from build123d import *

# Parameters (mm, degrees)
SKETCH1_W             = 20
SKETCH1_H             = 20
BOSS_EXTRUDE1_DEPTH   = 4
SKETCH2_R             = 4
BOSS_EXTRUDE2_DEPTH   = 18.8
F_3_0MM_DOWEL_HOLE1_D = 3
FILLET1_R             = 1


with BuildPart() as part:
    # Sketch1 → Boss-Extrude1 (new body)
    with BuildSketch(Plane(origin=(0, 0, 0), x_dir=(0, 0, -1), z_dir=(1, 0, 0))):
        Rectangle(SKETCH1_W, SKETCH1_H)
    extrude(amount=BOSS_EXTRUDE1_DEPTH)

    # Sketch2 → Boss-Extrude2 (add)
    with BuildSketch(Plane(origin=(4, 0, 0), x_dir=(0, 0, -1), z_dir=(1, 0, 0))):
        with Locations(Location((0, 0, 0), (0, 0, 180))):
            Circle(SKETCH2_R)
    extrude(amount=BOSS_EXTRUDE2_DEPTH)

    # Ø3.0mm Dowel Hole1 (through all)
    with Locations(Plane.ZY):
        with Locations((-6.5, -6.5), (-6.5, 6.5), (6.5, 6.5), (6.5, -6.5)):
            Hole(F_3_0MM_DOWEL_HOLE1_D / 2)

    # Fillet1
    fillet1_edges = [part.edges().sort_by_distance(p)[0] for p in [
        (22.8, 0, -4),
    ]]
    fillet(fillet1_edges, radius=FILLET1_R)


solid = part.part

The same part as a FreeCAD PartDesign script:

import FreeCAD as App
import Part
import Sketcher

V = App.Vector


def edges_at(feature, points):
    """Names of the edges that pass closest to the given points."""
    edges = feature.Shape.Edges
    near = lambda p: min(range(len(edges)), key=lambda i: edges[i].distToShape(Part.Vertex(*p))[0])
    return sorted({f"Edge{near(p) + 1}" for p in points})


def add_polygon(sketch, points):
    """Adds a closed chain of lines whose ends are joined by coincident constraints."""
    first, n = sketch.GeometryCount, len(points)
    for a, b in zip(points, points[1:] + points[:1]):
        sketch.addGeometry(Part.LineSegment(App.Vector(*a, 0), App.Vector(*b, 0)), False)
    for i in range(n):
        sketch.addConstraint(Sketcher.Constraint("Coincident", first + i, 2, first + (i + 1) % n, 1))

doc = App.newDocument("Part")
body = doc.addObject("PartDesign::Body", "Body")

# Sketch on YZ plane
sketch1 = doc.addObject("Sketcher::SketchObject", "Sketch")
body.addObject(sketch1)
sketch1.AttachmentSupport = (doc.YZ_Plane, [""])
sketch1.MapMode = "FlatFace"
add_polygon(sketch1, [(10, 10), (-10, 10), (-10, -10), (10, -10)])  # lines 0-3
sketch1.addConstraint(Sketcher.Constraint("Horizontal", 0))
sketch1.addConstraint(Sketcher.Constraint("Vertical", 1))
sketch1.addConstraint(Sketcher.Constraint("Horizontal", 2))
sketch1.addConstraint(Sketcher.Constraint("Vertical", 3))
sketch1.addConstraint(Sketcher.Constraint("Symmetric", 0, 2, 2, 2, -1, 1))
sketch1.addConstraint(Sketcher.Constraint("Equal", 2, 1))
sketch1.addConstraint(Sketcher.Constraint("DistanceX", 0, 2, 0, 1, 20.0))
pad1 = doc.addObject("PartDesign::Pad", "Pad")
body.addObject(pad1)
pad1.Profile = sketch1
pad1.Length = 4

# Sketch on YZ plane
sketch2 = doc.addObject("Sketcher::SketchObject", "Sketch001")
body.addObject(sketch2)
sketch2.AttachmentSupport = (doc.YZ_Plane, [""])
sketch2.MapMode = "FlatFace"
sketch2.AttachmentOffset = App.Placement(V(0, 0, 4), App.Rotation())
sketch2.addGeometry(Part.Circle(V(0, 0, 0), V(0, 0, 1), 4), False)
sketch2.addConstraint(Sketcher.Constraint("Coincident", 0, 3, -1, 1))
sketch2.addConstraint(Sketcher.Constraint("Diameter", 0, 8.0))
pad2 = doc.addObject("PartDesign::Pad", "Pad001")
body.addObject(pad2)
pad2.Profile = sketch2
pad2.Length = 18.8

# Sketch on YZ plane
sketch3 = doc.addObject("Sketcher::SketchObject", "Sketch002")
body.addObject(sketch3)
sketch3.AttachmentSupport = (doc.YZ_Plane, [""])
sketch3.MapMode = "FlatFace"
sketch3.addGeometry(Part.Circle(V(-6.5, -6.5, 0), V(0, 0, 1), 1.5), False)
sketch3.addGeometry(Part.Circle(V(6.5, -6.5, 0), V(0, 0, 1), 1.5), False)
sketch3.addGeometry(Part.Circle(V(6.5, 6.5, 0), V(0, 0, 1), 1.5), False)
sketch3.addGeometry(Part.Circle(V(-6.5, 6.5, 0), V(0, 0, 1), 1.5), False)
sketch3.addConstraint(Sketcher.Constraint("Equal", 0, 1))
sketch3.addConstraint(Sketcher.Constraint("Equal", 1, 2))
sketch3.addConstraint(Sketcher.Constraint("Equal", 2, 3))
sketch3.addConstraint(Sketcher.Constraint("Symmetric", 0, 3, 2, 3, -1, 1))
sketch3.addConstraint(Sketcher.Constraint("Symmetric", 1, 3, 3, 3, -1, 1))
sketch3.addConstraint(Sketcher.Constraint("Symmetric", 0, 3, 1, 3, -2))
sketch3.addConstraint(Sketcher.Constraint("Diameter", 0, 3.0))
sketch3.addConstraint(Sketcher.Constraint("DistanceX", 0, 3, 1, 3, 13.0))
sketch3.addConstraint(Sketcher.Constraint("DistanceY", 1, 3, 2, 3, 13.0))
doc.recompute()
hole = doc.addObject("PartDesign::Hole", "Hole")
body.addObject(hole)
hole.Profile = sketch3
hole.ThreadType = "None"
hole.Diameter = 3
hole.DepthType = "ThroughAll"
hole.Reversed = True
doc.recompute()

fillet = doc.addObject("PartDesign::Fillet", "Fillet")
body.addObject(fillet)
fillet.Base = (hole, edges_at(hole, [(22.8, 0, -4)]))
fillet.Radius = 1

doc.recompute()
